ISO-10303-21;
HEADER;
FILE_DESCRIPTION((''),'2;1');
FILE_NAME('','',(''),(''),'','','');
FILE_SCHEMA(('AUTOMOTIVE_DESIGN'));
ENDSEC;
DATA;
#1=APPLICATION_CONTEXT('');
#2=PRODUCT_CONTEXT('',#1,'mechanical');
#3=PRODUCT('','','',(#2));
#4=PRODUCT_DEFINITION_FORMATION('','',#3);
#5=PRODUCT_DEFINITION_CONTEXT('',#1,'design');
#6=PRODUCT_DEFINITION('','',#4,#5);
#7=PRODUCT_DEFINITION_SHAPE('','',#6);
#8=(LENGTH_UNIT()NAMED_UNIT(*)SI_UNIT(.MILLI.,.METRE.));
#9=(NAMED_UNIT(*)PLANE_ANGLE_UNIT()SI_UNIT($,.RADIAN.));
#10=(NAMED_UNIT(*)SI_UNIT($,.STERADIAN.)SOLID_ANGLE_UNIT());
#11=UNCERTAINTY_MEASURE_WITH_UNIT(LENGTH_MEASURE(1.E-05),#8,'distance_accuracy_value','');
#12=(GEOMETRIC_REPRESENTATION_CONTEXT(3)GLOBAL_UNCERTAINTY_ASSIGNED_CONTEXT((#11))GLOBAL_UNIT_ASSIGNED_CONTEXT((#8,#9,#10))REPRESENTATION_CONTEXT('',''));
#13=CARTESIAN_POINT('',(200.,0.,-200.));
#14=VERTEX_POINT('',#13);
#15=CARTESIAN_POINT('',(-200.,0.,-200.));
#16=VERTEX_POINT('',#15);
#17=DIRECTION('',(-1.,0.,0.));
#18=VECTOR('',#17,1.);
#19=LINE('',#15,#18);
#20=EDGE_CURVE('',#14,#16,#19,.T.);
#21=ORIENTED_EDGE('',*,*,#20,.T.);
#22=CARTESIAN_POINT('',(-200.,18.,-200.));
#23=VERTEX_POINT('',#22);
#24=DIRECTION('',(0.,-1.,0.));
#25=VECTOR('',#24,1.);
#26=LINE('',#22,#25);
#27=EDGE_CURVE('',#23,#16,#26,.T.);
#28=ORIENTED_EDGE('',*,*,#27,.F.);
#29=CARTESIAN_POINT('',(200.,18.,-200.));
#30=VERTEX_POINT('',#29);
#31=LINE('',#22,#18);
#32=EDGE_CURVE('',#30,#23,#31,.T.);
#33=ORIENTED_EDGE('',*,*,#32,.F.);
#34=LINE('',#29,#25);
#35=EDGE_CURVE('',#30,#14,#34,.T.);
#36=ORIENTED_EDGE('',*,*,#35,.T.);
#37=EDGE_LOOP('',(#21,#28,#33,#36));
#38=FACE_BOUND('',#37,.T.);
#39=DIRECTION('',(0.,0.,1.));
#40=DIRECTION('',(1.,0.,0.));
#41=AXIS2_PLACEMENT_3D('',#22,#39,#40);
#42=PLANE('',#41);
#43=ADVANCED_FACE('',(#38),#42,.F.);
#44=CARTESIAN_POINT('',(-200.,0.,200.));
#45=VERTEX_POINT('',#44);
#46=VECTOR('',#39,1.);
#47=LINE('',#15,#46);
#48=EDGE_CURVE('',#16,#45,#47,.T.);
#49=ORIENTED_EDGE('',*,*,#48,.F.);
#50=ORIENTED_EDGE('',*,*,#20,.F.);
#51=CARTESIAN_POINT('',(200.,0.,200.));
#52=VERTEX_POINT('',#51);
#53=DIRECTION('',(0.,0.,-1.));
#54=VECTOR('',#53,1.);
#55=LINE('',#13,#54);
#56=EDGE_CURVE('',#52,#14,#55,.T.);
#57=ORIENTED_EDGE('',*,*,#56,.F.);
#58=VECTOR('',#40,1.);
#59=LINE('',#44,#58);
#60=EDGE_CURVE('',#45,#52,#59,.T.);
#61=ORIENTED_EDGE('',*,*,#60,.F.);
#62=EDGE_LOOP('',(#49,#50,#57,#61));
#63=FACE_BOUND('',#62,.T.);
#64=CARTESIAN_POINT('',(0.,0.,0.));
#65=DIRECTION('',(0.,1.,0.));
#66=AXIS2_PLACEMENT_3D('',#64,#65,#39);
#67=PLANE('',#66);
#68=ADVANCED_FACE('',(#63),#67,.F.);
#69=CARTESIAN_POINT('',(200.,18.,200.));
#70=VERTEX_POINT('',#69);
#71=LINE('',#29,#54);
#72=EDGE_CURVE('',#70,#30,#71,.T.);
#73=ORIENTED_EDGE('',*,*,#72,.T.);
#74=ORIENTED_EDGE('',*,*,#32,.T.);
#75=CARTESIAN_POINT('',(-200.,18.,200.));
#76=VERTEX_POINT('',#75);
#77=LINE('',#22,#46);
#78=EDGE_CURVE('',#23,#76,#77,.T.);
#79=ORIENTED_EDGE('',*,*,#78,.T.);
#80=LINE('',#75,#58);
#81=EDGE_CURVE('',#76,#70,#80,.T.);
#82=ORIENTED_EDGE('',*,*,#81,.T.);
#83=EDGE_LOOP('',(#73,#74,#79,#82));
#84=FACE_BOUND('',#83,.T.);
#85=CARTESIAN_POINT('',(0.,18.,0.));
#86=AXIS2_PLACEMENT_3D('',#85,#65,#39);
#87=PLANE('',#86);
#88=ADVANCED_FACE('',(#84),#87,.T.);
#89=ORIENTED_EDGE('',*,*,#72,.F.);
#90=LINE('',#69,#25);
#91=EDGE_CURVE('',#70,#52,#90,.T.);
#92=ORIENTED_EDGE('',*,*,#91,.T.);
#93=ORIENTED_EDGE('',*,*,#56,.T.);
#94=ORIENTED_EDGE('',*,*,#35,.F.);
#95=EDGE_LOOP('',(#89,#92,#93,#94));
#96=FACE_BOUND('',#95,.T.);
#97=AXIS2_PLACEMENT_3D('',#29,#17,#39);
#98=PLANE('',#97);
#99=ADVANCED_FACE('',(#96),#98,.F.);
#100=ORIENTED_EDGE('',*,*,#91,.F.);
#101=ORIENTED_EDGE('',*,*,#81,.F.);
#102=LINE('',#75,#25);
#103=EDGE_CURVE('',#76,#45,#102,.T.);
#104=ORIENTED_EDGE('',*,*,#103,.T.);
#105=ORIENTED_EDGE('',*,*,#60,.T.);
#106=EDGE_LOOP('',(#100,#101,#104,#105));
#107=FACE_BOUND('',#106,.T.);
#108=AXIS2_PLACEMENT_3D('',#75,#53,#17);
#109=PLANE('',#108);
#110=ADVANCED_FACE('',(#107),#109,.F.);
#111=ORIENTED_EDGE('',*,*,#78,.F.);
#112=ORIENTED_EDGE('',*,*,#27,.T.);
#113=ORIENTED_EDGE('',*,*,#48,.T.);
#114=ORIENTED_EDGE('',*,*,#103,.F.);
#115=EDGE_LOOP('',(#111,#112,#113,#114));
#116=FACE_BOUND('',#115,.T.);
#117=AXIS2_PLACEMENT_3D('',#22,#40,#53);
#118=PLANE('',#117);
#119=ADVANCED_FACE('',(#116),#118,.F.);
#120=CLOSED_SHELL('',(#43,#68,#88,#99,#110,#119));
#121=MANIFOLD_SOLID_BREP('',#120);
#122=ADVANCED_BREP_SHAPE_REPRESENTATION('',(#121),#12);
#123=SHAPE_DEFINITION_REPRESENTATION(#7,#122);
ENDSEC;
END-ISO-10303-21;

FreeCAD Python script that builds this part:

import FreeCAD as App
import Part
import Sketcher

V = App.Vector
Q = App.Units.Quantity

doc = App.newDocument("Part")
body = doc.addObject("PartDesign::Body", "Body")

# Sketch on XZ plane
sketch1 = doc.addObject("Sketcher::SketchObject", "Sketch")
body.addObject(sketch1)
sketch1.AttachmentSupport = (doc.XZ_Plane, [""])
sketch1.MapMode = "FlatFace"
sketch1.addGeometry([
    Part.LineSegment(V(-200, -200, 0), V(-200, 200, 0)),
    Part.LineSegment(V(-200, 200, 0), V(200, 200, 0)),
    Part.LineSegment(V(200, 200, 0), V(200, -200, 0)),
    Part.LineSegment(V(200, -200, 0), V(-200, -200, 0)),
], False)
sketch1.addConstraint([
    Sketcher.Constraint("Coincident", 0, 2, 1, 1),
    Sketcher.Constraint("Coincident", 1, 2, 2, 1),
    Sketcher.Constraint("Coincident", 2, 2, 3, 1),
    Sketcher.Constraint("Coincident", 3, 2, 0, 1),
    Sketcher.Constraint("Vertical", 0),
    Sketcher.Constraint("Horizontal", 1),
    Sketcher.Constraint("Vertical", 2),
    Sketcher.Constraint("Horizontal", 3),
    Sketcher.Constraint("Symmetric", 0, 2, 2, 2, -1, 1),
    Sketcher.Constraint("Equal", 3, 0),
    Sketcher.Constraint("DistanceX", 1, 1, 1, 2, Q("400 mm")),
])
pad1 = doc.addObject("PartDesign::Pad", "Pad")
body.addObject(pad1)
pad1.Profile = sketch1
pad1.Length = 18
pad1.Reversed = True

doc.recompute()
